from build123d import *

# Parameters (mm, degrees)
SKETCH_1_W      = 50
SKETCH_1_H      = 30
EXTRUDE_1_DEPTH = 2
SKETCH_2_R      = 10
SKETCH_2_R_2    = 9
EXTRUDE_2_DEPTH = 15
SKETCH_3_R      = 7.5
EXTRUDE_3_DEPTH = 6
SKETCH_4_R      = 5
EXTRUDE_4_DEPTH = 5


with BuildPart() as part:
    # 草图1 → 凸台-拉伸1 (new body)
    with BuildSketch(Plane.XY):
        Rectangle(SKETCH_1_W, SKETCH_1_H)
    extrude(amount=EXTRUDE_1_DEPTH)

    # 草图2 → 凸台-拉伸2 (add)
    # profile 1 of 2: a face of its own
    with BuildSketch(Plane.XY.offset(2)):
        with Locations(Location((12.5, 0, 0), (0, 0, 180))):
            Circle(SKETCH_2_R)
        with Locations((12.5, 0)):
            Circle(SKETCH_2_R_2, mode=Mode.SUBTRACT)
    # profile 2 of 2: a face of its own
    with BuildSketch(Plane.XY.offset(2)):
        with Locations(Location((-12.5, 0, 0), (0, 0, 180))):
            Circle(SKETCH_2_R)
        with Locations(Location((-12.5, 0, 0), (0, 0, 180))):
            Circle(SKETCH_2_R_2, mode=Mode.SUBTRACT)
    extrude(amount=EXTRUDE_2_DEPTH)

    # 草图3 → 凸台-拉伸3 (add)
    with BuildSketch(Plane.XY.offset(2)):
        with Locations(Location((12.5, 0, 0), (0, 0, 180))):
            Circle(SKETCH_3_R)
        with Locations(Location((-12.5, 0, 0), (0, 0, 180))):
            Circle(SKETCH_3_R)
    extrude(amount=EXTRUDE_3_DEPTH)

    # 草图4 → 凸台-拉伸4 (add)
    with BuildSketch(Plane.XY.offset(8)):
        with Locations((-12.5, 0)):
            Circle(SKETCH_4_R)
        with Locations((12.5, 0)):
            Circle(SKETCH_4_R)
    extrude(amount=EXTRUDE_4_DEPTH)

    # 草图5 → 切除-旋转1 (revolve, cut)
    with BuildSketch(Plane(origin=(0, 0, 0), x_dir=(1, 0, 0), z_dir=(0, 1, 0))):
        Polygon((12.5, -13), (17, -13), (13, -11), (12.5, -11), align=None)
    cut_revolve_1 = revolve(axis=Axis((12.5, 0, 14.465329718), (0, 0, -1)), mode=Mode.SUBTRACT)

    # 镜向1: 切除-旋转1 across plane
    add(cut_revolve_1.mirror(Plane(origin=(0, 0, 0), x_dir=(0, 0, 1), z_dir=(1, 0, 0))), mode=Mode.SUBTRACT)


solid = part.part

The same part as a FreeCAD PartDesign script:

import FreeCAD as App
import Part
import Sketcher

V = App.Vector

doc = App.newDocument("Part")
body = doc.addObject("PartDesign::Body", "Body")

sketch1 = body.newObject("Sketcher::SketchObject", "Sketch")
sketch1.AttachmentSupport = (doc.getObject("XY_Plane"), [""])
sketch1.MapMode = "FlatFace"
sketch1.addGeometry([
    Part.LineSegment(V(-25, 15, 0), V(-25, -15, 0)),
    Part.LineSegment(V(-25, -15, 0), V(25, -15, 0)),
    Part.LineSegment(V(25, -15, 0), V(25, 15, 0)),
    Part.LineSegment(V(25, 15, 0), V(-25, 15, 0)),
], False)
sketch1.addConstraint([
    Sketcher.Constraint("Coincident", 0, 2, 1, 1),
    Sketcher.Constraint("Coincident", 1, 2, 2, 1),
    Sketcher.Constraint("Coincident", 2, 2, 3, 1),
    Sketcher.Constraint("Coincident", 3, 2, 0, 1),
    Sketcher.Constraint("Vertical", 0),
    Sketcher.Constraint("Horizontal", 1),
    Sketcher.Constraint("Vertical", 2),
    Sketcher.Constraint("Horizontal", 3),
    Sketcher.Constraint("Symmetric", 0, 2, 2, 2, -1, 1),
    Sketcher.Constraint("DistanceX", 1, 1, 1, 2, 50.0),
    Sketcher.Constraint("DistanceY", 0, 2, 0, 1, 30.0),
])
pad1 = body.newObject("PartDesign::Pad", "Pad")
pad1.Profile = sketch1
pad1.Length = 2

sketch2 = body.newObject("Sketcher::SketchObject", "Sketch001")
sketch2.AttachmentSupport = (doc.getObject("XY_Plane"), [""])
sketch2.MapMode = "FlatFace"
sketch2.AttachmentOffset = App.Placement(V(0, 0, 2), App.Rotation())
sketch2.addGeometry([
    Part.Circle(V(12, 0, 0), V(0, 0, 1), 10),
    Part.Circle(V(12, 0, 0), V(0, 0, 1), 9),
    Part.Circle(V(-12, 0, 0), V(0, 0, 1), 10),
    Part.Circle(V(-12, 0, 0), V(0, 0, 1), 9),
], False)
sketch2.addConstraint([
    Sketcher.Constraint("Coincident", 1, 3, 0, 3),
    Sketcher.Constraint("Coincident", 3, 3, 2, 3),
    Sketcher.Constraint("Equal", 0, 2),
    Sketcher.Constraint("Equal", 1, 3),
    Sketcher.Constraint("Symmetric", 0, 3, 2, 3, -1, 1),
    Sketcher.Constraint("PointOnObject", 0, 3, -1),
    Sketcher.Constraint("Diameter", 0, 20.0),
    Sketcher.Constraint("Diameter", 1, 18.0),
    Sketcher.Constraint("DistanceX", 2, 3, 0, 3, 25.0),
])
pad2 = body.newObject("PartDesign::Pad", "Pad001")
pad2.Profile = sketch2
pad2.Length = 15

sketch3 = body.newObject("Sketcher::SketchObject", "Sketch002")
sketch3.AttachmentSupport = (doc.getObject("XY_Plane"), [""])
sketch3.MapMode = "FlatFace"
sketch3.AttachmentOffset = App.Placement(V(0, 0, 2), App.Rotation())
sketch3.addGeometry([
    Part.Circle(V(12, 0, 0), V(0, 0, 1), 8),
    Part.Circle(V(-12, 0, 0), V(0, 0, 1), 8),
], False)
sketch3.addConstraint([
    Sketcher.Constraint("Equal", 0, 1),
    Sketcher.Constraint("Symmetric", 0, 3, 1, 3, -1, 1),
    Sketcher.Constraint("PointOnObject", 0, 3, -1),
    Sketcher.Constraint("Diameter", 0, 15.0),
    Sketcher.Constraint("DistanceX", 1, 3, 0, 3, 25.0),
])
pad3 = body.newObject("PartDesign::Pad", "Pad002")
pad3.Profile = sketch3
pad3.Length = 6

sketch4 = body.newObject("Sketcher::SketchObject", "Sketch003")
sketch4.AttachmentSupport = (doc.getObject("XY_Plane"), [""])
sketch4.MapMode = "FlatFace"
sketch4.AttachmentOffset = App.Placement(V(0, 0, 8), App.Rotation())
sketch4.addGeometry([
    Part.Circle(V(-12, 0, 0), V(0, 0, 1), 5),
    Part.Circle(V(12, 0, 0), V(0, 0, 1), 5),
], False)
sketch4.addConstraint([
    Sketcher.Constraint("Equal", 0, 1),
    Sketcher.Constraint("Symmetric", 0, 3, 1, 3, -1, 1),
    Sketcher.Constraint("PointOnObject", 0, 3, -1),
    Sketcher.Constraint("Diameter", 0, 10.0),
    Sketcher.Constraint("DistanceX", 0, 3, 1, 3, 25.0),
])
pad4 = body.newObject("PartDesign::Pad", "Pad003")
pad4.Profile = sketch4
pad4.Length = 5

sketch5 = body.newObject("Sketcher::SketchObject", "Sketch004")
sketch5.AttachmentSupport = (doc.getObject("XZ_Plane"), [""])
sketch5.MapMode = "FlatFace"
sketch5.addGeometry([
    Part.LineSegment(V(12.5, 13, 0), V(17, 13, 0)),
    Part.LineSegment(V(17, 13, 0), V(13, 11, 0)),
    Part.LineSegment(V(13, 11, 0), V(12.5, 11, 0)),
    Part.LineSegment(V(12.5, 11, 0), V(12.5, 13, 0)),
], False)
sketch5.addGeometry(Part.LineSegment(V(12.5, 13, 0), V(12.5, 11, 0)), True)
sketch5.addConstraint([
    Sketcher.Constraint("Coincident", 0, 2, 1, 1),
    Sketcher.Constraint("Coincident", 1, 2, 2, 1),
    Sketcher.Constraint("Coincident", 2, 2, 3, 1),
    Sketcher.Constraint("Coincident", 3, 2, 0, 1),
    Sketcher.Constraint("Horizontal", 0),
    Sketcher.Constraint("Horizontal", 2),
    Sketcher.Constraint("Vertical", 3),
    Sketcher.Constraint("Vertical", 4),
    Sketcher.Constraint("Coincident", 4, 1, 3, 2),
    Sketcher.Constraint("Horizontal", 1, 2, 4, 2),
    Sketcher.Constraint("DistanceY", 3, 1, 3, 2, 2.0),
    Sketcher.Constraint("DistanceX", 0, 1, 0, 2, 4.5),
    Sketcher.Constraint("DistanceX", 2, 2, 2, 1, 0.5),
    Sketcher.Constraint("DistanceX", -1, 1, 0, 2, 17.0),
    Sketcher.Constraint("DistanceY", -1, 1, 0, 2, 13.0),
])
groove = body.newObject("PartDesign::Groove", "Groove")
groove.Profile = sketch5
groove.ReferenceAxis = (sketch5, ["Axis0"])
groove.Angle = 360
doc.recompute()

mirrored = body.newObject("PartDesign::Mirrored", "Mirrored")
mirrored.Originals = [groove]
mirrored.MirrorPlane = (doc.getObject("YZ_Plane"), [""])
body.Tip = mirrored

doc.recompute()
